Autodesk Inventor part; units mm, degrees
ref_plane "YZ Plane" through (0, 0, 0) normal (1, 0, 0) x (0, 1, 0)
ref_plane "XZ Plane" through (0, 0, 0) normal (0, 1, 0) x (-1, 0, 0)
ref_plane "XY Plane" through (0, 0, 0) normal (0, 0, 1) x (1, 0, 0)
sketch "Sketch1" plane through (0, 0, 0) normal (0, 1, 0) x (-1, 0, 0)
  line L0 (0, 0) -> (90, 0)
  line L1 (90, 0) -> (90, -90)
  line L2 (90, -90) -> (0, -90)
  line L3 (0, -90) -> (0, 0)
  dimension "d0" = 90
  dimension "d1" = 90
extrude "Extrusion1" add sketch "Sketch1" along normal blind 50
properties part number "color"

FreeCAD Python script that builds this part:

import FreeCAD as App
import Part
import Sketcher

V = App.Vector


def add_polygon(sketch, points):
    """Adds a closed chain of lines whose ends are joined by coincident constraints."""
    first, n = sketch.GeometryCount, len(points)
    for a, b in zip(points, points[1:] + points[:1]):
        sketch.addGeometry(Part.LineSegment(App.Vector(*a, 0), App.Vector(*b, 0)), False)
    for i in range(n):
        sketch.addConstraint(Sketcher.Constraint("Coincident", first + i, 2, first + (i + 1) % n, 1))

doc = App.newDocument("Part")
params = doc.addObject("Spreadsheet::Sheet", "Params")
for row, (alias, value) in enumerate([
    ("sketch1_width", "90 mm"),
    ("pad1_length", "50 mm"),
], start=1):
    params.set(f"A{row}", alias)
    params.set(f"B{row}", "=" + value)
    params.setAlias(f"B{row}", alias)

body = doc.addObject("PartDesign::Body", "Body")

sketch1 = body.newObject("Sketcher::SketchObject", "Sketch")
sketch1.AttachmentSupport = (doc.getObject("XZ_Plane"), [""])
sketch1.MapMode = "FlatFace"
add_polygon(sketch1, [(-90, 0), (0, 0), (0, -90), (-90, -90)])
sketch1.addConstraint(Sketcher.Constraint("Horizontal", 0))
sketch1.addConstraint(Sketcher.Constraint("Vertical", 1))
sketch1.addConstraint(Sketcher.Constraint("Horizontal", 2))
sketch1.addConstraint(Sketcher.Constraint("Vertical", 3))
sketch1.addConstraint(Sketcher.Constraint("Coincident", 0, 2, -1, 1))
sketch1.addConstraint(Sketcher.Constraint("Equal", 2, 1))
sketch1.addConstraint(Sketcher.Constraint("DistanceX", 0, 1, 0, 2, 90.0))
sketch1.setExpression("Constraints[10]", "Params.sketch1_width")
pad1 = body.newObject("PartDesign::Pad", "Pad")
pad1.Profile = sketch1
pad1.setExpression("Length", "Params.pad1_length")
pad1.Reversed = True

doc.recompute()
